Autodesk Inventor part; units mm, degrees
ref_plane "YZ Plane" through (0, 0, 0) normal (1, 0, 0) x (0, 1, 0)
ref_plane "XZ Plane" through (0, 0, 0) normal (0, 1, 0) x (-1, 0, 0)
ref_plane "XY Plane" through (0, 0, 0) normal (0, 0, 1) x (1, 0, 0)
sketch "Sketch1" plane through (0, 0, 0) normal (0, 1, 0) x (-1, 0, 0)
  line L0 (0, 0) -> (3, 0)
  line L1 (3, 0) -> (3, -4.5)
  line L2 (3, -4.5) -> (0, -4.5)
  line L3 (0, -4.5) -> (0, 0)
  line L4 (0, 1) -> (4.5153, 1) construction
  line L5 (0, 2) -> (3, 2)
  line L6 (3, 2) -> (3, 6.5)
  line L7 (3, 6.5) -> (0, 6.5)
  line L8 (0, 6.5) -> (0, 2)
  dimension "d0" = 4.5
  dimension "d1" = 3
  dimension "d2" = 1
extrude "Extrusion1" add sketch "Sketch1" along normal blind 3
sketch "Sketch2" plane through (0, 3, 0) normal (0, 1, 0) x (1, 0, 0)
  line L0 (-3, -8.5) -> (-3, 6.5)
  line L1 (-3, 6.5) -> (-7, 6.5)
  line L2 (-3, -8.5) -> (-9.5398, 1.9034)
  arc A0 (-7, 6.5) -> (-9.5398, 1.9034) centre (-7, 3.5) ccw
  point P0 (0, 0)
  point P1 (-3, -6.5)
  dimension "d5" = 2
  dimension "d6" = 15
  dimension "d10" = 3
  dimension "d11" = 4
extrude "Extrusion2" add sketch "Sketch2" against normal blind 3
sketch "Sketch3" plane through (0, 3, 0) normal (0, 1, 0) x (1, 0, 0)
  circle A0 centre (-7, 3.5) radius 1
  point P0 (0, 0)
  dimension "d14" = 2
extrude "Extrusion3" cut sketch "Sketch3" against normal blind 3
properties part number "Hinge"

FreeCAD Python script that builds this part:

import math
import FreeCAD as App
import Part
import Sketcher
Q = App.Units.Quantity

doc = App.newDocument("Part")
body = doc.addObject("PartDesign::Body", "Body")
body.AllowCompound = True

sketch1 = doc.addObject("Sketcher::SketchObject", "Sketch")
body.addObject(sketch1)
sketch1.AttachmentSupport = (doc.XZ_Plane, [""])
sketch1.MapMode = "FlatFace"
sketch1.addGeometry(Part.LineSegment(App.Vector(-3, 0, 0), App.Vector(0, 0, 0)), False)
sketch1.addGeometry(Part.LineSegment(App.Vector(0, 0, 0), App.Vector(0, -4.5, 0)), False)
sketch1.addGeometry(Part.LineSegment(App.Vector(0, -4.5, 0), App.Vector(-3, -4.5, 0)), False)
sketch1.addGeometry(Part.LineSegment(App.Vector(-3, -4.5, 0), App.Vector(-3, 0, 0)), False)
sketch1.addGeometry(Part.LineSegment(App.Vector(0, 6.5, 0), App.Vector(0, 2, 0)), False)
sketch1.addGeometry(Part.LineSegment(App.Vector(0, 2, 0), App.Vector(-3, 2, 0)), False)
sketch1.addGeometry(Part.LineSegment(App.Vector(-3, 2, 0), App.Vector(-3, 6.5, 0)), False)
sketch1.addGeometry(Part.LineSegment(App.Vector(-3, 6.5, 0), App.Vector(0, 6.5, 0)), False)
sketch1.addConstraint(Sketcher.Constraint("Coincident", 0, 2, 1, 1))
sketch1.addConstraint(Sketcher.Constraint("Coincident", 1, 2, 2, 1))
sketch1.addConstraint(Sketcher.Constraint("Coincident", 2, 2, 3, 1))
sketch1.addConstraint(Sketcher.Constraint("Coincident", 3, 2, 0, 1))
sketch1.addConstraint(Sketcher.Constraint("Coincident", 4, 2, 5, 1))
sketch1.addConstraint(Sketcher.Constraint("Coincident", 5, 2, 6, 1))
sketch1.addConstraint(Sketcher.Constraint("Coincident", 6, 2, 7, 1))
sketch1.addConstraint(Sketcher.Constraint("Coincident", 7, 2, 4, 1))
sketch1.addConstraint(Sketcher.Constraint("Horizontal", 0))
sketch1.addConstraint(Sketcher.Constraint("Vertical", 1))
sketch1.addConstraint(Sketcher.Constraint("Horizontal", 2))
sketch1.addConstraint(Sketcher.Constraint("Vertical", 3))
sketch1.addConstraint(Sketcher.Constraint("Vertical", 4))
sketch1.addConstraint(Sketcher.Constraint("Horizontal", 5))
sketch1.addConstraint(Sketcher.Constraint("Vertical", 6))
sketch1.addConstraint(Sketcher.Constraint("Horizontal", 7))
sketch1.addConstraint(Sketcher.Constraint("Coincident", 0, 2, -1, 1))
sketch1.addConstraint(Sketcher.Constraint("PointOnObject", 4, 2, -2))
sketch1.addConstraint(Sketcher.Constraint("Vertical", 3, 2, 5, 2))
sketch1.addConstraint(Sketcher.Constraint("Equal", 3, 4))
sketch1.addConstraint(Sketcher.Constraint("DistanceX", 0, 1, 0, 2, Q("3 mm")))
sketch1.addConstraint(Sketcher.Constraint("DistanceY", 1, 2, 1, 1, Q("4.5 mm")))
sketch1.addConstraint(Sketcher.Constraint("DistanceY", -1, 1, 4, 2, Q("2 mm")))
pad1 = doc.addObject("PartDesign::Pad", "Pad")
body.addObject(pad1)
pad1.Profile = sketch1
pad1.Length = 3
pad1.Reversed = True

sketch2 = doc.addObject("Sketcher::SketchObject", "Sketch001")
body.addObject(sketch2)
sketch2.AttachmentSupport = (doc.XZ_Plane, [""])
sketch2.MapMode = "FlatFace"
sketch2.AttachmentOffset = App.Placement(App.Vector(0, 0, -3), App.Rotation())
sketch2.addGeometry(Part.LineSegment(App.Vector(-9.5, -1.9, 0), App.Vector(-3, 8.5, 0)), False)
sketch2.addGeometry(Part.LineSegment(App.Vector(-3, 8.5, 0), App.Vector(-3, -6.5, 0)), False)
sketch2.addGeometry(Part.LineSegment(App.Vector(-3, -6.5, 0), App.Vector(-7, -6.5, 0)), False)
sketch2.addGeometry(Part.ArcOfCircle(Part.Circle(App.Vector(-7, -3.5, 0), App.Vector(0, 0, 1), 3), math.radians(148), math.radians(270)), False)
sketch2.addConstraint(Sketcher.Constraint("Coincident", 0, 2, 1, 1))
sketch2.addConstraint(Sketcher.Constraint("Coincident", 1, 2, 2, 1))
sketch2.addConstraint(Sketcher.Constraint("Tangent", 2, 2, 3, 2))
sketch2.addConstraint(Sketcher.Constraint("Tangent", 3, 1, 0, 1))
sketch2.addConstraint(Sketcher.Constraint("Vertical", 1))
sketch2.addConstraint(Sketcher.Constraint("Horizontal", 2))
sketch2.addConstraint(Sketcher.Constraint("Radius", 3, Q("3 mm")))
sketch2.addConstraint(Sketcher.Constraint("DistanceX", 2, 2, 2, 1, Q("4 mm")))
sketch2.addConstraint(Sketcher.Constraint("DistanceY", 1, 2, 1, 1, Q("15 mm")))
sketch2.addConstraint(Sketcher.Constraint("DistanceX", 0, 2, -1, 1, Q("3 mm")))
sketch2.addConstraint(Sketcher.Constraint("DistanceY", 3, 3, -1, 1, Q("3.5 mm")))
pad2 = doc.addObject("PartDesign::Pad", "Pad001")
body.addObject(pad2)
pad2.Profile = sketch2
pad2.Length = 3

sketch3 = doc.addObject("Sketcher::SketchObject", "Sketch002")
body.addObject(sketch3)
sketch3.AttachmentSupport = (doc.XZ_Plane, [""])
sketch3.MapMode = "FlatFace"
sketch3.AttachmentOffset = App.Placement(App.Vector(0, 0, -3), App.Rotation())
sketch3.addGeometry(Part.Circle(App.Vector(-7, -3.5, 0), App.Vector(0, 0, 1), 1), False)
sketch3.addConstraint(Sketcher.Constraint("Diameter", 0, Q("2 mm")))
sketch3.addConstraint(Sketcher.Constraint("DistanceX", 0, 3, -1, 1, Q("7 mm")))
sketch3.addConstraint(Sketcher.Constraint("DistanceY", 0, 3, -1, 1, Q("3.5 mm")))
pocket1 = doc.addObject("PartDesign::Pocket", "Pocket")
body.addObject(pocket1)
pocket1.Profile = sketch3
pocket1.Length = 3
pocket1.Reversed = True

doc.recompute()
